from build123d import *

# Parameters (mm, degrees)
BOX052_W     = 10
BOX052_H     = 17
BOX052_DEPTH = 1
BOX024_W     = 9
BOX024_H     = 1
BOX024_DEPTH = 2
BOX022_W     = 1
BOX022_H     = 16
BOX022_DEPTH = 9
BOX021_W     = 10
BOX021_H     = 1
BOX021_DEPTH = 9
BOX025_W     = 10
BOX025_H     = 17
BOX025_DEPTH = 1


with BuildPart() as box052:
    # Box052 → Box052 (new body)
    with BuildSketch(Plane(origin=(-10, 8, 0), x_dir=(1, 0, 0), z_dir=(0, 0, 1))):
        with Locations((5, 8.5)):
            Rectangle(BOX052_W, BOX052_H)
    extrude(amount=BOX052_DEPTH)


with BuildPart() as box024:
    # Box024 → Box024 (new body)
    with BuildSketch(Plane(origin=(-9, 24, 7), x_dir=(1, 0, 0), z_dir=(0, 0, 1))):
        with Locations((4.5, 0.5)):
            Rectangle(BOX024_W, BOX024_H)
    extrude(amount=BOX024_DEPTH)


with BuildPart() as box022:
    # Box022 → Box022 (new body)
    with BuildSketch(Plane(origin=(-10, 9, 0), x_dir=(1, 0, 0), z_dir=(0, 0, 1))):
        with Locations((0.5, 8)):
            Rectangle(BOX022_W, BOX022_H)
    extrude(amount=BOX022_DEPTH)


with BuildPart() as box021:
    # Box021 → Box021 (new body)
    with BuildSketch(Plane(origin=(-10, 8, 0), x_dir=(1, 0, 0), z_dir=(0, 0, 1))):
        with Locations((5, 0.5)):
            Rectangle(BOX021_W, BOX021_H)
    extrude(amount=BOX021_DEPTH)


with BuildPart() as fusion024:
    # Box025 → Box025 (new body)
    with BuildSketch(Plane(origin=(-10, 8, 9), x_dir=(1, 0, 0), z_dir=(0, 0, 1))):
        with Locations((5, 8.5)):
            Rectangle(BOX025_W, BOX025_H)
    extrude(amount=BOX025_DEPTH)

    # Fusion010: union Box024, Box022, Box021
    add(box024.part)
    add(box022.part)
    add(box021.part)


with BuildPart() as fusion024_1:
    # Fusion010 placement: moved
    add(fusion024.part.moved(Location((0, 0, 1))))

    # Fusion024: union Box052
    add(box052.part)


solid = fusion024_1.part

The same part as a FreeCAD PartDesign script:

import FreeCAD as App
import Part
import Sketcher

V = App.Vector


def add_polygon(sketch, points):
    """Adds a closed chain of lines whose ends are joined by coincident constraints."""
    first, n = sketch.GeometryCount, len(points)
    for a, b in zip(points, points[1:] + points[:1]):
        sketch.addGeometry(Part.LineSegment(App.Vector(*a, 0), App.Vector(*b, 0)), False)
    for i in range(n):
        sketch.addConstraint(Sketcher.Constraint("Coincident", first + i, 2, first + (i + 1) % n, 1))

doc = App.newDocument("Part")
params = doc.addObject("Spreadsheet::Sheet", "Params")
for row, (alias, value) in enumerate([
    ("sketch1_width", "10 mm"),
    ("sketch1_height", "17 mm"),
    ("pad1_length", "1 mm"),
    ("sketch2_width", "9 mm"),
    ("sketch2_height", "1 mm"),
    ("pad2_length", "2 mm"),
    ("sketch3_width", "1 mm"),
    ("sketch3_height", "16 mm"),
    ("pad3_length", "9 mm"),
    ("sketch4_width", "10 mm"),
    ("sketch4_height", "1 mm"),
    ("pad4_length", "9 mm"),
    ("sketch5_width", "10 mm"),
    ("sketch5_height", "17 mm"),
    ("pad5_length", "1 mm"),
], start=1):
    params.set(f"A{row}", alias)
    params.set(f"B{row}", "=" + value)
    params.setAlias(f"B{row}", alias)

body = doc.addObject("PartDesign::Body", "Body")

sketch1 = doc.addObject("Sketcher::SketchObject", "Sketch")
body.addObject(sketch1)
sketch1.AttachmentSupport = (doc.XY_Plane, [""])
sketch1.MapMode = "FlatFace"
add_polygon(sketch1, [(-10, 25), (-10, 8), (0, 8), (0, 25)])
sketch1.addConstraint(Sketcher.Constraint("Vertical", 0))
sketch1.addConstraint(Sketcher.Constraint("Horizontal", 1))
sketch1.addConstraint(Sketcher.Constraint("Vertical", 2))
sketch1.addConstraint(Sketcher.Constraint("Horizontal", 3))
sketch1.addConstraint(Sketcher.Constraint("PointOnObject", 1, 2, -2))
sketch1.addConstraint(Sketcher.Constraint("DistanceX", 1, 1, 1, 2, 10.0))
sketch1.addConstraint(Sketcher.Constraint("DistanceY", 0, 2, 0, 1, 17.0))
sketch1.addConstraint(Sketcher.Constraint("DistanceY", -1, 1, 0, 2, 8.0))
sketch1.setExpression("Constraints[9]", "Params.sketch1_width")
sketch1.setExpression("Constraints[10]", "Params.sketch1_height")
pad1 = doc.addObject("PartDesign::Pad", "Pad")
body.addObject(pad1)
pad1.Profile = sketch1
pad1.setExpression("Length", "Params.pad1_length")
body2 = doc.addObject("PartDesign::Body", "Body001")

sketch2 = doc.addObject("Sketcher::SketchObject", "Sketch001")
body2.addObject(sketch2)
sketch2.AttachmentSupport = (doc.getObject("XY_Plane001"), [""])
sketch2.MapMode = "FlatFace"
sketch2.AttachmentOffset = App.Placement(V(0, 0, 7), App.Rotation())
add_polygon(sketch2, [(-9, 25), (-9, 24), (0, 24), (0, 25)])
sketch2.addConstraint(Sketcher.Constraint("Vertical", 0))
sketch2.addConstraint(Sketcher.Constraint("Horizontal", 1))
sketch2.addConstraint(Sketcher.Constraint("Vertical", 2))
sketch2.addConstraint(Sketcher.Constraint("Horizontal", 3))
sketch2.addConstraint(Sketcher.Constraint("PointOnObject", 1, 2, -2))
sketch2.addConstraint(Sketcher.Constraint("DistanceX", 1, 1, 1, 2, 9.0))
sketch2.addConstraint(Sketcher.Constraint("DistanceY", 0, 2, 0, 1, 1.0))
sketch2.addConstraint(Sketcher.Constraint("DistanceY", -1, 1, 0, 2, 24.0))
sketch2.setExpression("Constraints[9]", "Params.sketch2_width")
sketch2.setExpression("Constraints[10]", "Params.sketch2_height")
pad2 = doc.addObject("PartDesign::Pad", "Pad001")
body2.addObject(pad2)
pad2.Profile = sketch2
pad2.setExpression("Length", "Params.pad2_length")
body3 = doc.addObject("PartDesign::Body", "Body002")

sketch3 = doc.addObject("Sketcher::SketchObject", "Sketch002")
body3.addObject(sketch3)
sketch3.AttachmentSupport = (doc.getObject("XY_Plane002"), [""])
sketch3.MapMode = "FlatFace"
add_polygon(sketch3, [(-10, 25), (-10, 9), (-9, 9), (-9, 25)])
sketch3.addConstraint(Sketcher.Constraint("Vertical", 0))
sketch3.addConstraint(Sketcher.Constraint("Horizontal", 1))
sketch3.addConstraint(Sketcher.Constraint("Vertical", 2))
sketch3.addConstraint(Sketcher.Constraint("Horizontal", 3))
sketch3.addConstraint(Sketcher.Constraint("DistanceX", 1, 1, 1, 2, 1.0))
sketch3.addConstraint(Sketcher.Constraint("DistanceY", 0, 2, 0, 1, 16.0))
sketch3.addConstraint(Sketcher.Constraint("DistanceX", 0, 2, -1, 1, 10.0))
sketch3.addConstraint(Sketcher.Constraint("DistanceY", -1, 1, 0, 2, 9.0))
sketch3.setExpression("Constraints[8]", "Params.sketch3_width")
sketch3.setExpression("Constraints[9]", "Params.sketch3_height")
pad3 = doc.addObject("PartDesign::Pad", "Pad002")
body3.addObject(pad3)
pad3.Profile = sketch3
pad3.setExpression("Length", "Params.pad3_length")
body4 = doc.addObject("PartDesign::Body", "Body003")

sketch4 = doc.addObject("Sketcher::SketchObject", "Sketch003")
body4.addObject(sketch4)
sketch4.AttachmentSupport = (doc.getObject("XY_Plane003"), [""])
sketch4.MapMode = "FlatFace"
add_polygon(sketch4, [(-10, 9), (-10, 8), (0, 8), (0, 9)])
sketch4.addConstraint(Sketcher.Constraint("Vertical", 0))
sketch4.addConstraint(Sketcher.Constraint("Horizontal", 1))
sketch4.addConstraint(Sketcher.Constraint("Vertical", 2))
sketch4.addConstraint(Sketcher.Constraint("Horizontal", 3))
sketch4.addConstraint(Sketcher.Constraint("PointOnObject", 1, 2, -2))
sketch4.addConstraint(Sketcher.Constraint("DistanceX", 1, 1, 1, 2, 10.0))
sketch4.addConstraint(Sketcher.Constraint("DistanceY", 0, 2, 0, 1, 1.0))
sketch4.addConstraint(Sketcher.Constraint("DistanceY", -1, 1, 0, 2, 8.0))
sketch4.setExpression("Constraints[9]", "Params.sketch4_width")
sketch4.setExpression("Constraints[10]", "Params.sketch4_height")
pad4 = doc.addObject("PartDesign::Pad", "Pad003")
body4.addObject(pad4)
pad4.Profile = sketch4
pad4.setExpression("Length", "Params.pad4_length")
body5 = doc.addObject("PartDesign::Body", "Body004")

sketch5 = doc.addObject("Sketcher::SketchObject", "Sketch004")
body5.addObject(sketch5)
sketch5.AttachmentSupport = (doc.getObject("XY_Plane004"), [""])
sketch5.MapMode = "FlatFace"
sketch5.AttachmentOffset = App.Placement(V(0, 0, 9), App.Rotation())
add_polygon(sketch5, [(-10, 25), (-10, 8), (0, 8), (0, 25)])
sketch5.addConstraint(Sketcher.Constraint("Vertical", 0))
sketch5.addConstraint(Sketcher.Constraint("Horizontal", 1))
sketch5.addConstraint(Sketcher.Constraint("Vertical", 2))
sketch5.addConstraint(Sketcher.Constraint("Horizontal", 3))
sketch5.addConstraint(Sketcher.Constraint("PointOnObject", 1, 2, -2))
sketch5.addConstraint(Sketcher.Constraint("DistanceX", 1, 1, 1, 2, 10.0))
sketch5.addConstraint(Sketcher.Constraint("DistanceY", 0, 2, 0, 1, 17.0))
sketch5.addConstraint(Sketcher.Constraint("DistanceY", -1, 1, 0, 2, 8.0))
sketch5.setExpression("Constraints[9]", "Params.sketch5_width")
sketch5.setExpression("Constraints[10]", "Params.sketch5_height")
pad5 = doc.addObject("PartDesign::Pad", "Pad004")
body5.addObject(pad5)
pad5.Profile = sketch5
pad5.setExpression("Length", "Params.pad5_length")
doc.recompute()

boolean = doc.addObject("PartDesign::Boolean", "Boolean")
body5.addObject(boolean)
boolean.Type = "Fuse"
boolean.addObjects([body2])
doc.recompute()

boolean2 = doc.addObject("PartDesign::Boolean", "Boolean001")
body5.addObject(boolean2)
boolean2.Type = "Fuse"
boolean2.addObjects([body3])
doc.recompute()

boolean3 = doc.addObject("PartDesign::Boolean", "Boolean002")
body5.addObject(boolean3)
boolean3.Type = "Fuse"
boolean3.addObjects([body4])
body6 = doc.addObject("PartDesign::Body", "Body005")
doc.recompute()

body5.Placement = App.Placement(V(0, 0, 1), App.Rotation(V(0, 0, 1), 0))
boolean4 = doc.addObject("PartDesign::Boolean", "Boolean003")
body6.addObject(boolean4)
boolean4.Type = "Fuse"
boolean4.addObjects([body5])
doc.recompute()

boolean5 = doc.addObject("PartDesign::Boolean", "Boolean004")
body6.addObject(boolean5)
boolean5.Type = "Fuse"
boolean5.addObjects([body])

doc.recompute()
